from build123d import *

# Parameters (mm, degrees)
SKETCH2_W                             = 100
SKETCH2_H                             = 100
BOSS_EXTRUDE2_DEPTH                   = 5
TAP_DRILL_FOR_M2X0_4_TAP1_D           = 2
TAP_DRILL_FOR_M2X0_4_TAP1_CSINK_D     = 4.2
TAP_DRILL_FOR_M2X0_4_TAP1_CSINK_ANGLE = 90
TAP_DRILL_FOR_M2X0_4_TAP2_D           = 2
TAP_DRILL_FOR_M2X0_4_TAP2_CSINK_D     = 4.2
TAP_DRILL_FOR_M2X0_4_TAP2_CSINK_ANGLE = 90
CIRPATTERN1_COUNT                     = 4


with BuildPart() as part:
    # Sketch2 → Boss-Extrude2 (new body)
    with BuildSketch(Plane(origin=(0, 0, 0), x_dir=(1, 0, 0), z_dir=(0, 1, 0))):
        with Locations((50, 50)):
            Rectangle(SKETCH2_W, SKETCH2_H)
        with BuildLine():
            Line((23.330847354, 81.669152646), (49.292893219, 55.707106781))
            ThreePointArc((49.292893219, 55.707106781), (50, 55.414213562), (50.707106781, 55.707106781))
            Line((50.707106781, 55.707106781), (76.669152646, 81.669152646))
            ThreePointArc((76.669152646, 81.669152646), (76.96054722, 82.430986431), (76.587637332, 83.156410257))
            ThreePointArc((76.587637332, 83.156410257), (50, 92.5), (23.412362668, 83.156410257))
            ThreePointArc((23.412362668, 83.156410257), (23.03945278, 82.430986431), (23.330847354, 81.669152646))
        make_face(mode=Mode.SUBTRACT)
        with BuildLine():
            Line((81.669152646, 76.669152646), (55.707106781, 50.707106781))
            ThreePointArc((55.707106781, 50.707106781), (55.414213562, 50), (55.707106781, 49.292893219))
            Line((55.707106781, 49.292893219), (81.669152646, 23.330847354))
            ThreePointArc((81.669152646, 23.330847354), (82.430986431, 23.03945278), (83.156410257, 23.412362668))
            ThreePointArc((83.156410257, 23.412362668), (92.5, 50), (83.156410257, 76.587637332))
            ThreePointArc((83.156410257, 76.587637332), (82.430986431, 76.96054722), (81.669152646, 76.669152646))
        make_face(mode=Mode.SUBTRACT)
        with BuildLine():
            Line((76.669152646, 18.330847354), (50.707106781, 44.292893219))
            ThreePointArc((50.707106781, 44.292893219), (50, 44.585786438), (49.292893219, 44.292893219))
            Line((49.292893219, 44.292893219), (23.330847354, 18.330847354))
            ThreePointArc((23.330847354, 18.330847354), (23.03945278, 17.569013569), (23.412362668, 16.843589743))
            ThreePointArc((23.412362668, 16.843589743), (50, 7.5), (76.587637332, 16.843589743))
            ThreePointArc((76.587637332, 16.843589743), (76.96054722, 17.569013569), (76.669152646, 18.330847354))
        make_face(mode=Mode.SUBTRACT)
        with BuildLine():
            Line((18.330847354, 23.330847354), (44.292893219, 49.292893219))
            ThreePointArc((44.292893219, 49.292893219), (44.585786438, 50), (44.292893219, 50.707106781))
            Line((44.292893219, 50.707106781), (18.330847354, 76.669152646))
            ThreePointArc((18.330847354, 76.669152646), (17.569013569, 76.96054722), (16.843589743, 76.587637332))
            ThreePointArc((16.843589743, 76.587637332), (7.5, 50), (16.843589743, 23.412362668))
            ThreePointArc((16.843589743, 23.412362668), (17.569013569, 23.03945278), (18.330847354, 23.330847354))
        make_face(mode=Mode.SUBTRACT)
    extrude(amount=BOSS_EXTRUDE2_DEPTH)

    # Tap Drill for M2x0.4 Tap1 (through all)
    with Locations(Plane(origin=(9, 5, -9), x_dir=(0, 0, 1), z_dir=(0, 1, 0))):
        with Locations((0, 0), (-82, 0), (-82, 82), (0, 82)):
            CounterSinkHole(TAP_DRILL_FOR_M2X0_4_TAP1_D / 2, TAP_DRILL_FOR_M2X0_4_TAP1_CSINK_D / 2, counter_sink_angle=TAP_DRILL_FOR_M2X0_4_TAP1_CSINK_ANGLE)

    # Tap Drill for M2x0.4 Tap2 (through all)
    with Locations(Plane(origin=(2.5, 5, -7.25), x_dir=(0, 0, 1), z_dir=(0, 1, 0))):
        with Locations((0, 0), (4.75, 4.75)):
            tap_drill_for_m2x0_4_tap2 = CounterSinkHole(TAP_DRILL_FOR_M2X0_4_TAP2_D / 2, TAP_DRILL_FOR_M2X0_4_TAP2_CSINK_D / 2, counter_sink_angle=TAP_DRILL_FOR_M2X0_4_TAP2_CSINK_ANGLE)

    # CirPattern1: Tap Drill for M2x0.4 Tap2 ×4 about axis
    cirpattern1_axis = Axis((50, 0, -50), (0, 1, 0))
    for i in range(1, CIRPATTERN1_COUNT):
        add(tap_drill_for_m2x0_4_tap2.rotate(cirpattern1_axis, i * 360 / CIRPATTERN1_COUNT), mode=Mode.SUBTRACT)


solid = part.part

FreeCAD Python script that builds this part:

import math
import FreeCAD as App
import Part
import Sketcher
from FreeCAD import Vector


def add_polygon(sketch, points):
    """Adds a closed chain of lines whose ends are joined by coincident constraints."""
    first, n = sketch.GeometryCount, len(points)
    for a, b in zip(points, points[1:] + points[:1]):
        sketch.addGeometry(Part.LineSegment(App.Vector(*a, 0), App.Vector(*b, 0)), False)
    for i in range(n):
        sketch.addConstraint(Sketcher.Constraint("Coincident", first + i, 2, first + (i + 1) % n, 1))

doc = App.newDocument("Part")
params = doc.addObject("Spreadsheet::Sheet", "Params")
for row, (alias, value) in enumerate([
    ("sketch1_radius", "1 mm"),
    ("sketch1_radius2", "42.5 mm"),
    ("sketch1_width", "100 mm"),
    ("pad1_length", "5 mm"),
    ("sketch2_diameter", "2 mm"),
    ("hole_diameter", "2 mm"),
    ("hole_csink_diameter", "4.2 mm"),
    ("sketch3_diameter", "2 mm"),
    ("hole2_diameter", "2 mm"),
    ("hole2_csink_diameter", "4.2 mm"),
], start=1):
    params.set(f"A{row}", alias)
    params.set(f"B{row}", "=" + value)
    params.setAlias(f"B{row}", alias)

body = doc.addObject("PartDesign::Body", "Body")

# Sketch on XZ plane
sketch1 = body.newObject("Sketcher::SketchObject", "Sketch")
sketch1.AttachmentSupport = (doc.getObject("XZ_Plane"), [""])
sketch1.MapMode = "FlatFace"
add_polygon(sketch1, [(0, -100), (0, 0), (100, 0), (100, -100)])  # lines 0-3
sketch1.addGeometry(Part.LineSegment(Vector(50.707107, -44.292893, 0), Vector(76.669153, -18.330847, 0)), False)  # 4
sketch1.addGeometry(Part.ArcOfCircle(Part.Circle(Vector(75.962046, -17.623741, 0), Vector(0, 0, 1), 1), math.radians(-45), math.radians(51.274387)), False)  # 5
sketch1.addGeometry(Part.ArcOfCircle(Part.Circle(Vector(50, -50, 0), Vector(0, 0, 1), 42.5), math.radians(51.274387), math.radians(128.725613)), False)  # 6
sketch1.addGeometry(Part.ArcOfCircle(Part.Circle(Vector(24.037954, -17.623741, 0), Vector(0, 0, 1), 1), math.radians(128.725613), math.radians(225)), False)  # 7
sketch1.addGeometry(Part.LineSegment(Vector(23.330847, -18.330847, 0), Vector(49.292893, -44.292893, 0)), False)  # 8
sketch1.addGeometry(Part.ArcOfCircle(Part.Circle(Vector(50, -43.585786, 0), Vector(0, 0, 1), 1), math.radians(-135), math.radians(-45)), False)  # 9
sketch1.addGeometry(Part.LineSegment(Vector(44.292893, -49.292893, 0), Vector(18.330847, -23.330847, 0)), False)  # 10
sketch1.addGeometry(Part.ArcOfCircle(Part.Circle(Vector(17.623741, -24.037954, 0), Vector(0, 0, 1), 1), math.radians(45), math.radians(141.274387)), False)  # 11
sketch1.addGeometry(Part.ArcOfCircle(Part.Circle(Vector(50, -50, 0), Vector(0, 0, 1), 42.5), math.radians(141.274387), math.radians(218.725613)), False)  # 12
sketch1.addGeometry(Part.ArcOfCircle(Part.Circle(Vector(17.623741, -75.962046, 0), Vector(0, 0, 1), 1), math.radians(-141.274387), math.radians(-45)), False)  # 13
sketch1.addGeometry(Part.LineSegment(Vector(18.330847, -76.669153, 0), Vector(44.292893, -50.707107, 0)), False)  # 14
sketch1.addGeometry(Part.ArcOfCircle(Part.Circle(Vector(43.585786, -50, 0), Vector(0, 0, 1), 1), math.radians(-45), math.radians(45)), False)  # 15
sketch1.addGeometry(Part.LineSegment(Vector(55.707107, -50.707107, 0), Vector(81.669153, -76.669153, 0)), False)  # 16
sketch1.addGeometry(Part.ArcOfCircle(Part.Circle(Vector(82.376259, -75.962046, 0), Vector(0, 0, 1), 1), math.radians(-135), math.radians(-38.725613)), False)  # 17
sketch1.addGeometry(Part.ArcOfCircle(Part.Circle(Vector(50, -50, 0), Vector(0, 0, 1), 42.5), math.radians(-38.725613), math.radians(38.725613)), False)  # 18
sketch1.addGeometry(Part.ArcOfCircle(Part.Circle(Vector(82.376259, -24.037954, 0), Vector(0, 0, 1), 1), math.radians(38.725613), math.radians(135)), False)  # 19
sketch1.addGeometry(Part.LineSegment(Vector(81.669153, -23.330847, 0), Vector(55.707107, -49.292893, 0)), False)  # 20
sketch1.addGeometry(Part.ArcOfCircle(Part.Circle(Vector(56.414214, -50, 0), Vector(0, 0, 1), 1), math.radians(135), math.radians(225)), False)  # 21
sketch1.addGeometry(Part.LineSegment(Vector(49.292893, -55.707107, 0), Vector(23.330847, -81.669153, 0)), False)  # 22
sketch1.addGeometry(Part.ArcOfCircle(Part.Circle(Vector(24.037954, -82.376259, 0), Vector(0, 0, 1), 1), math.radians(135), math.radians(231.274387)), False)  # 23
sketch1.addGeometry(Part.ArcOfCircle(Part.Circle(Vector(50, -50, 0), Vector(0, 0, 1), 42.5), math.radians(-128.725613), math.radians(-51.274387)), False)  # 24
sketch1.addGeometry(Part.ArcOfCircle(Part.Circle(Vector(75.962046, -82.376259, 0), Vector(0, 0, 1), 1), math.radians(-51.274387), math.radians(45)), False)  # 25
sketch1.addGeometry(Part.LineSegment(Vector(76.669153, -81.669153, 0), Vector(50.707107, -55.707107, 0)), False)  # 26
sketch1.addGeometry(Part.ArcOfCircle(Part.Circle(Vector(50, -56.414214, 0), Vector(0, 0, 1), 1), math.radians(45), math.radians(135)), False)  # 27
sketch1.addConstraint([
    Sketcher.Constraint("Tangent", 4, 2, 5, 1),
    Sketcher.Constraint("Tangent", 5, 2, 6, 1),
    Sketcher.Constraint("Tangent", 6, 2, 7, 1),
    Sketcher.Constraint("Tangent", 7, 2, 8, 1),
    Sketcher.Constraint("Tangent", 8, 2, 9, 1),
    Sketcher.Constraint("Tangent", 9, 2, 4, 1),
    Sketcher.Constraint("Tangent", 10, 2, 11, 1),
    Sketcher.Constraint("Tangent", 11, 2, 12, 1),
    Sketcher.Constraint("Tangent", 12, 2, 13, 1),
    Sketcher.Constraint("Tangent", 13, 2, 14, 1),
    Sketcher.Constraint("Tangent", 14, 2, 15, 1),
    Sketcher.Constraint("Tangent", 15, 2, 10, 1),
    Sketcher.Constraint("Tangent", 16, 2, 17, 1),
    Sketcher.Constraint("Tangent", 17, 2, 18, 1),
    Sketcher.Constraint("Tangent", 18, 2, 19, 1),
    Sketcher.Constraint("Tangent", 19, 2, 20, 1),
    Sketcher.Constraint("Tangent", 20, 2, 21, 1),
    Sketcher.Constraint("Tangent", 21, 2, 16, 1),
    Sketcher.Constraint("Tangent", 22, 2, 23, 1),
    Sketcher.Constraint("Tangent", 23, 2, 24, 1),
    Sketcher.Constraint("Tangent", 24, 2, 25, 1),
    Sketcher.Constraint("Tangent", 25, 2, 26, 1),
    Sketcher.Constraint("Tangent", 26, 2, 27, 1),
    Sketcher.Constraint("Tangent", 27, 2, 22, 1),
    Sketcher.Constraint("Vertical", 0),
    Sketcher.Constraint("Horizontal", 1),
    Sketcher.Constraint("Vertical", 2),
    Sketcher.Constraint("Horizontal", 3),
    Sketcher.Constraint("Coincident", 0, 2, -1, 1),
    Sketcher.Constraint("Coincident", 12, 3, 6, 3),
    Sketcher.Constraint("Coincident", 18, 3, 6, 3),
    Sketcher.Constraint("Coincident", 24, 3, 6, 3),
    Sketcher.Constraint("Equal", 5, 7),
    Sketcher.Constraint("Equal", 7, 9),
    Sketcher.Constraint("Equal", 9, 11),
    Sketcher.Constraint("Equal", 6, 12),
    Sketcher.Constraint("Equal", 11, 13),
    Sketcher.Constraint("Equal", 13, 15),
    Sketcher.Constraint("Equal", 15, 17),
    Sketcher.Constraint("Equal", 12, 18),
    Sketcher.Constraint("Equal", 17, 19),
    Sketcher.Constraint("Equal", 19, 21),
    Sketcher.Constraint("Equal", 21, 23),
    Sketcher.Constraint("Equal", 18, 24),
    Sketcher.Constraint("Equal", 23, 25),
    Sketcher.Constraint("Equal", 25, 27),
    Sketcher.Constraint("Perpendicular", 4, 8),
    Sketcher.Constraint("Parallel", 8, 10),
    Sketcher.Constraint("Perpendicular", 10, 14),
    Sketcher.Constraint("Perpendicular", 14, 16),
    Sketcher.Constraint("Perpendicular", 16, 20),
    Sketcher.Constraint("Parallel", 20, 22),
    Sketcher.Constraint("Perpendicular", 22, 26),
    Sketcher.Constraint("Horizontal", 5, 3, 7, 3),
    Sketcher.Constraint("Horizontal", 12, 3, 15, 3),
    Sketcher.Constraint("Horizontal", 13, 3, 17, 3),
    Sketcher.Constraint("Horizontal", 11, 3, 19, 3),
    Sketcher.Constraint("Horizontal", 18, 3, 21, 3),
    Sketcher.Constraint("Horizontal", 23, 3, 25, 3),
    Sketcher.Constraint("Vertical", 7, 3, 23, 3),
    Sketcher.Constraint("Equal", 3, 0),
    Sketcher.Constraint("Equal", 8, 10),
    Sketcher.Constraint("Radius", 5, 1.0),
    Sketcher.Constraint("Radius", 6, 42.5),
    Sketcher.Constraint("DistanceX", 1, 1, 1, 2, 100.0),
    Sketcher.Constraint("DistanceX", -1, 1, 6, 3, 50.0),
    Sketcher.Constraint("DistanceY", 6, 3, -1, 1, 50.0),
    Sketcher.Constraint("DistanceX", 10, 2, 7, 2, 5.0),
])
sketch1.setExpression("Constraints[66]", "Params.sketch1_radius")
sketch1.setExpression("Constraints[67]", "Params.sketch1_radius2")
sketch1.setExpression("Constraints[68]", "Params.sketch1_width")
pad1 = body.newObject("PartDesign::Pad", "Pad")
pad1.Profile = sketch1
pad1.setExpression("Length", "Params.pad1_length")
pad1.Reversed = True

# Sketch on XZ plane
sketch2 = body.newObject("Sketcher::SketchObject", "Sketch001")
sketch2.AttachmentSupport = (doc.getObject("XZ_Plane"), [""])
sketch2.MapMode = "FlatFace"
sketch2.AttachmentOffset = App.Placement(Vector(0, 0, -5), App.Rotation())
sketch2.addGeometry([
    Part.Circle(Vector(9, -9, 0), Vector(0, 0, 1), 1),
    Part.Circle(Vector(9, -91, 0), Vector(0, 0, 1), 1),
    Part.Circle(Vector(91, -91, 0), Vector(0, 0, 1), 1),
    Part.Circle(Vector(91, -9, 0), Vector(0, 0, 1), 1),
], False)
sketch2.addConstraint([
    Sketcher.Constraint("Equal", 0, 1),
    Sketcher.Constraint("Equal", 1, 2),
    Sketcher.Constraint("Equal", 2, 3),
    Sketcher.Constraint("Horizontal", 1, 3, 2, 3),
    Sketcher.Constraint("Horizontal", 0, 3, 3, 3),
    Sketcher.Constraint("Vertical", 0, 3, 1, 3),
    Sketcher.Constraint("Vertical", 2, 3, 3, 3),
    Sketcher.Constraint("Diameter", 0, 2.0),
    Sketcher.Constraint("DistanceX", -1, 1, 0, 3, 9.0),
    Sketcher.Constraint("DistanceY", 0, 3, -1, 1, 9.0),
    Sketcher.Constraint("DistanceY", 1, 3, -1, 1, 91.0),
    Sketcher.Constraint("DistanceX", -1, 1, 2, 3, 91.0),
])
sketch2.setExpression("Constraints[7]", "Params.sketch2_diameter")
doc.recompute()
hole = body.newObject("PartDesign::Hole", "Hole")
hole.Profile = sketch2
hole.ThreadType = "None"
hole.setExpression("Diameter", "Params.hole_diameter")
hole.DepthType = "ThroughAll"
hole.HoleCutType = "Countersink"
hole.setExpression("HoleCutDiameter", "Params.hole_csink_diameter")
hole.HoleCutCountersinkAngle = 90
hole.Reversed = True

# Sketch on XZ plane
sketch3 = body.newObject("Sketcher::SketchObject", "Sketch002")
sketch3.AttachmentSupport = (doc.getObject("XZ_Plane"), [""])
sketch3.MapMode = "FlatFace"
sketch3.AttachmentOffset = App.Placement(Vector(0, 0, -5), App.Rotation())
sketch3.addGeometry([
    Part.Circle(Vector(2.5, -7.25, 0), Vector(0, 0, 1), 1),
    Part.Circle(Vector(7.25, -2.5, 0), Vector(0, 0, 1), 1),
], False)
sketch3.addConstraint([
    Sketcher.Constraint("Equal", 0, 1),
    Sketcher.Constraint("Diameter", 0, 2.0),
    Sketcher.Constraint("DistanceX", -1, 1, 0, 3, 2.5),
    Sketcher.Constraint("DistanceY", 1, 3, -1, 1, 2.5),
    Sketcher.Constraint("DistanceY", 0, 3, -1, 1, 7.25),
    Sketcher.Constraint("DistanceX", -1, 1, 1, 3, 7.25),
])
sketch3.setExpression("Constraints[1]", "Params.sketch3_diameter")
doc.recompute()
hole2 = body.newObject("PartDesign::Hole", "Hole001")
hole2.Profile = sketch3
hole2.ThreadType = "None"
hole2.setExpression("Diameter", "Params.hole2_diameter")
hole2.DepthType = "ThroughAll"
hole2.HoleCutType = "Countersink"
hole2.setExpression("HoleCutDiameter", "Params.hole2_csink_diameter")
hole2.HoleCutCountersinkAngle = 90
hole2.Reversed = True
doc.recompute()

datumline = body.newObject("PartDesign::Line", "DatumLine")
datumline.Placement = App.Placement(Vector(50, 0, -50), App.Rotation(Vector(0, 0, 1), Vector(0, 1, 0)))
polarpattern = body.newObject("PartDesign::PolarPattern", "PolarPattern")
polarpattern.Originals = [hole2]
polarpattern.Axis = (datumline, [""])
polarpattern.Angle = 360
polarpattern.Occurrences = 4
body.Tip = polarpattern

doc.recompute()
